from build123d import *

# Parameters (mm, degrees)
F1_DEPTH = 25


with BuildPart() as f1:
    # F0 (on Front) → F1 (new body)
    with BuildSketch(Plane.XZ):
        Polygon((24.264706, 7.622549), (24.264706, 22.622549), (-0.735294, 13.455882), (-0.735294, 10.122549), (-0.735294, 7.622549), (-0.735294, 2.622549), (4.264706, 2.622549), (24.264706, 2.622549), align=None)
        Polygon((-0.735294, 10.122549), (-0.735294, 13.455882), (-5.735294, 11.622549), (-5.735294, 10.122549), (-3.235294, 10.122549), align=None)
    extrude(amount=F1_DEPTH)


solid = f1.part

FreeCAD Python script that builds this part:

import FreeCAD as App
import Part
import Sketcher
from FreeCAD import Vector

doc = App.newDocument("Part")
body = doc.addObject("PartDesign::Body", "Body")

# Sketch on XZ plane
sketch1 = body.newObject("Sketcher::SketchObject", "Sketch")
sketch1.AttachmentSupport = (doc.getObject("XZ_Plane"), [""])
sketch1.MapMode = "FlatFace"
sketch1.addGeometry([
    Part.LineSegment(Vector(24.3, 22.6, 0), Vector(-0.7, 13.5, 0)),  # 0
    Part.LineSegment(Vector(-0.7, 13.5, 0), Vector(-5.7, 11.6, 0)),  # 1
    Part.LineSegment(Vector(-5.7, 11.6, 0), Vector(-5.7, 10.1, 0)),  # 2
    Part.LineSegment(Vector(-5.7, 10.1, 0), Vector(-0.7, 10.1, 0)),  # 3
    Part.LineSegment(Vector(-0.7, 10.1, 0), Vector(-0.7, 2.6, 0)),  # 4
    Part.LineSegment(Vector(-0.7, 2.6, 0), Vector(24.3, 2.6, 0)),  # 5
    Part.LineSegment(Vector(24.3, 2.6, 0), Vector(24.3, 22.6, 0)),  # 6
], False)
sketch1.addConstraint([
    Sketcher.Constraint("Coincident", 0, 2, 1, 1),
    Sketcher.Constraint("Coincident", 1, 2, 2, 1),
    Sketcher.Constraint("Coincident", 2, 2, 3, 1),
    Sketcher.Constraint("Coincident", 3, 2, 4, 1),
    Sketcher.Constraint("Coincident", 4, 2, 5, 1),
    Sketcher.Constraint("Coincident", 5, 2, 6, 1),
    Sketcher.Constraint("Coincident", 6, 2, 0, 1),
    Sketcher.Constraint("Vertical", 2),
    Sketcher.Constraint("Horizontal", 3),
    Sketcher.Constraint("Vertical", 4),
    Sketcher.Constraint("Horizontal", 5),
    Sketcher.Constraint("Vertical", 6),
    Sketcher.Constraint("Parallel", 0, 1),
    Sketcher.Constraint("Vertical", 0, 2, 3, 2),
    Sketcher.Constraint("DistanceX", 3, 1, 3, 2, 5.0),
    Sketcher.Constraint("DistanceX", 5, 1, 5, 2, 25.0),
    Sketcher.Constraint("DistanceY", 6, 1, 6, 2, 20.0),
    Sketcher.Constraint("DistanceY", 2, 2, 2, 1, 1.5),
    Sketcher.Constraint("DistanceY", 4, 2, 4, 1, 7.5),
    Sketcher.Constraint("DistanceY", -1, 1, 1, 2, 11.622549),
    Sketcher.Constraint("DistanceX", 0, 2, -1, 1, 0.735294),
])
pad1 = body.newObject("PartDesign::Pad", "Pad")
pad1.Profile = sketch1
pad1.Length = 25

doc.recompute()
